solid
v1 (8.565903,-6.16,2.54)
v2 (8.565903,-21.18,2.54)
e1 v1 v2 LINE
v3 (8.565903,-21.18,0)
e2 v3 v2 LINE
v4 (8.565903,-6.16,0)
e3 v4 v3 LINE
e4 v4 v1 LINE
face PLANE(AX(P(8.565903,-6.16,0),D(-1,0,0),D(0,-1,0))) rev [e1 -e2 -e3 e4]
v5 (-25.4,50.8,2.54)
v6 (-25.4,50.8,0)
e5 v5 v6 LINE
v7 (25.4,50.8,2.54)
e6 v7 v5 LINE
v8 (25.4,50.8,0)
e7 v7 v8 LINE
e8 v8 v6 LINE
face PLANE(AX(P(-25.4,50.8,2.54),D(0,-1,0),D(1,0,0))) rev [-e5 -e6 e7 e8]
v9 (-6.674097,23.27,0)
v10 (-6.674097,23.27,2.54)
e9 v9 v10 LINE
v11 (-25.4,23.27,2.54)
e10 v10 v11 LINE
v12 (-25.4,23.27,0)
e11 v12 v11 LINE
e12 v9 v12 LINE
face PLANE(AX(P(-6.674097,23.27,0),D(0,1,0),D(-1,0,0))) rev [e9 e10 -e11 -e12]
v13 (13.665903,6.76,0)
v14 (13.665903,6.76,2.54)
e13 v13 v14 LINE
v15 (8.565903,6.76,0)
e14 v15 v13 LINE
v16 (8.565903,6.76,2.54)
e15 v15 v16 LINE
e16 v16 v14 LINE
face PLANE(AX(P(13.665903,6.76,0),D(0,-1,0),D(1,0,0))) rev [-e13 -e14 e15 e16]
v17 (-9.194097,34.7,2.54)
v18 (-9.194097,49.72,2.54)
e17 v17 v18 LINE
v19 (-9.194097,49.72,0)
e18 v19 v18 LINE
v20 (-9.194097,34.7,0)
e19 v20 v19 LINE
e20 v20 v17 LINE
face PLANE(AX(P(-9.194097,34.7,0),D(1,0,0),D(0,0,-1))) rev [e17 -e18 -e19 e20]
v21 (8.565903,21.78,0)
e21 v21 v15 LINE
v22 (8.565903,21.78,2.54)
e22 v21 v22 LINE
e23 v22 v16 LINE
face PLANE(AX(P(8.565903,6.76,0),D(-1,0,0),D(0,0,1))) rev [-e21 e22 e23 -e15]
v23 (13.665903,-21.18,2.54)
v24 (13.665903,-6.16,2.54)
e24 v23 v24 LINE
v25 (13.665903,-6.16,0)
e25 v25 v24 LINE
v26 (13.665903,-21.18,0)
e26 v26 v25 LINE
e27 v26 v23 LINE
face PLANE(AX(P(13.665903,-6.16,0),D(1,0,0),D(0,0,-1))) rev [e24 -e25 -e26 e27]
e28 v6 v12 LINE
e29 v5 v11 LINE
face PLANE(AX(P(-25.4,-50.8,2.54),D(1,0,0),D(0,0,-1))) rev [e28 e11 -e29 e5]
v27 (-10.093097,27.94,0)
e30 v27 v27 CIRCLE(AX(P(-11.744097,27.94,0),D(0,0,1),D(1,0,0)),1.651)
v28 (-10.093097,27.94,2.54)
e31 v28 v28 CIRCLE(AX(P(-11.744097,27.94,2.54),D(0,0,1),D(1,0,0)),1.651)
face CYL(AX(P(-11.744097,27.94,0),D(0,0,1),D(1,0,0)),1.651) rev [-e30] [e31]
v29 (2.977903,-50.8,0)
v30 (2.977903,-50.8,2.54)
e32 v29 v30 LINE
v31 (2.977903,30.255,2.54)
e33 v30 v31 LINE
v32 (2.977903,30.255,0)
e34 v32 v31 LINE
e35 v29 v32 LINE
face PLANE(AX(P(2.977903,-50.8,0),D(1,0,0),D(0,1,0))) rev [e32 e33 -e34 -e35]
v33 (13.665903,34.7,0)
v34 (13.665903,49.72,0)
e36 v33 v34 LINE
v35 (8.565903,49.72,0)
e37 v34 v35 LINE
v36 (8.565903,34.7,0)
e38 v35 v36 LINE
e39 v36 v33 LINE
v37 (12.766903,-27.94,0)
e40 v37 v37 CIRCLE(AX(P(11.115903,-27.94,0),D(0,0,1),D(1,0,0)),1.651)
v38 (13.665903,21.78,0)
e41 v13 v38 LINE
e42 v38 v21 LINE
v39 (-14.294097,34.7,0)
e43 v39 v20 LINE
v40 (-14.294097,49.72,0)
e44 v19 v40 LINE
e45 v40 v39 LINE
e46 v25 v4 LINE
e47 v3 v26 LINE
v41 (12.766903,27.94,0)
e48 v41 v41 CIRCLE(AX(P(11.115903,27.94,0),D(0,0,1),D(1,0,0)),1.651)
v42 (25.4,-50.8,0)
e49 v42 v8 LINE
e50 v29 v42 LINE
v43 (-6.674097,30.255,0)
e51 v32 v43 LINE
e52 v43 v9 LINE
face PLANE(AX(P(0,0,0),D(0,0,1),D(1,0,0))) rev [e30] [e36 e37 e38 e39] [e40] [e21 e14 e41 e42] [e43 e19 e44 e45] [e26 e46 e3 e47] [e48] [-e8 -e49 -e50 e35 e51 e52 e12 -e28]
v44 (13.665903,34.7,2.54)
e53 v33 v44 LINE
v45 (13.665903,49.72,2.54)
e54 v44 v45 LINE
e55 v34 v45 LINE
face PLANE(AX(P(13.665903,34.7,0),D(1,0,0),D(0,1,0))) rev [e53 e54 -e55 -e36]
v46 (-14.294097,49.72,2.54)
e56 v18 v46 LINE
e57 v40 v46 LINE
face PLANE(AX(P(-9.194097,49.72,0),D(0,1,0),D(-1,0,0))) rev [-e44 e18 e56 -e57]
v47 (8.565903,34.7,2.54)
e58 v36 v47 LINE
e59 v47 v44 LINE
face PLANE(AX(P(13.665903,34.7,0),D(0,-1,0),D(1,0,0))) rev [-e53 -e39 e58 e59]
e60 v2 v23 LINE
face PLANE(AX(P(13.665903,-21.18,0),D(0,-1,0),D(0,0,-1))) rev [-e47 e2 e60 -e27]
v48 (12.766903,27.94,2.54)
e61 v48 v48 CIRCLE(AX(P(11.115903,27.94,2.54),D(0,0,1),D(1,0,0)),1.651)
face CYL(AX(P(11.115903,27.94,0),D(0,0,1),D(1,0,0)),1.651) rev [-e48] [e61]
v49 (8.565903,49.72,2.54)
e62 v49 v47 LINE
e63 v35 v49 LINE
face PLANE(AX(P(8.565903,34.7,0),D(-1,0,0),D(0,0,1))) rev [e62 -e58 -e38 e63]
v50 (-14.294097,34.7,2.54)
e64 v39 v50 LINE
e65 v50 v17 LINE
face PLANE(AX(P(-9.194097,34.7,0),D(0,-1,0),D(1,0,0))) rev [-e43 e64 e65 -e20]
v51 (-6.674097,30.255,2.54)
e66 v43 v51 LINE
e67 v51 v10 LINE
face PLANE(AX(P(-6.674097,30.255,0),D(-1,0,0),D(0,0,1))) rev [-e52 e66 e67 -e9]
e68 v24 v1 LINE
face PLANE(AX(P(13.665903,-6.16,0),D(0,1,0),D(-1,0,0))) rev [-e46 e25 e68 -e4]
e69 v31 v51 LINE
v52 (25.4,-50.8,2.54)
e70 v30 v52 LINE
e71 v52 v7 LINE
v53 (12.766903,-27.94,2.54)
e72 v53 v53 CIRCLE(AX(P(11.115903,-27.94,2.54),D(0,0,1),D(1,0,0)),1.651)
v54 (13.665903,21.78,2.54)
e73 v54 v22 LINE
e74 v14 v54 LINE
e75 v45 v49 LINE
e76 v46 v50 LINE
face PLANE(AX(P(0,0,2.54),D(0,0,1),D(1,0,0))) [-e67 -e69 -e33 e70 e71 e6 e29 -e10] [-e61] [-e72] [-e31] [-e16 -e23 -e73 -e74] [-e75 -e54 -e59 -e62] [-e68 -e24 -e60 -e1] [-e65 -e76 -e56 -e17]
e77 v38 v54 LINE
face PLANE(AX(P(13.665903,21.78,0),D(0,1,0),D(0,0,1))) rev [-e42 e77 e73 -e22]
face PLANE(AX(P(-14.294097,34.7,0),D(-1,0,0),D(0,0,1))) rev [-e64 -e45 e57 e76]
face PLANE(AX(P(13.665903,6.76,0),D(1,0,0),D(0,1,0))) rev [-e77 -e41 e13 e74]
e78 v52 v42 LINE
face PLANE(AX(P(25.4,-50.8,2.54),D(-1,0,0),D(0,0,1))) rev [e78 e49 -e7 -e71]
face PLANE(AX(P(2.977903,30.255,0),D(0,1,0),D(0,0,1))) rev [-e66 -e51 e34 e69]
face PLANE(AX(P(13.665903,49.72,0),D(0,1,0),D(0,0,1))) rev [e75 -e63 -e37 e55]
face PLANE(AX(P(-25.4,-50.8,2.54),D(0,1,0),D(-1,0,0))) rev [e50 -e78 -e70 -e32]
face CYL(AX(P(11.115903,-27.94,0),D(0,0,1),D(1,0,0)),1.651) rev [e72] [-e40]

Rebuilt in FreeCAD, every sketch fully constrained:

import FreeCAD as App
import Part
import Sketcher
from FreeCAD import Vector
Q = App.Units.Quantity

doc = App.newDocument("Part")
body = doc.addObject("PartDesign::Body", "Body")

sketch1 = doc.addObject("Sketcher::SketchObject", "Sketch")
body.addObject(sketch1)
sketch1.AttachmentSupport = (doc.XY_Plane, [""])
sketch1.MapMode = "FlatFace"
sketch1.addGeometry(Part.LineSegment(Vector(-25.4, -50.8, 0), Vector(25.4, -50.8, 0)), False)
sketch1.addGeometry(Part.LineSegment(Vector(25.4, -50.8, 0), Vector(25.4, 50.8, 0)), False)
sketch1.addGeometry(Part.LineSegment(Vector(25.4, 50.8, 0), Vector(-25.4, 50.8, 0)), False)
sketch1.addGeometry(Part.LineSegment(Vector(-25.4, 50.8, 0), Vector(-25.4, -50.8, 0)), False)
sketch1.addConstraint(Sketcher.Constraint("Coincident", 0, 2, 1, 1))
sketch1.addConstraint(Sketcher.Constraint("Coincident", 1, 2, 2, 1))
sketch1.addConstraint(Sketcher.Constraint("Coincident", 2, 2, 3, 1))
sketch1.addConstraint(Sketcher.Constraint("Coincident", 3, 2, 0, 1))
sketch1.addConstraint(Sketcher.Constraint("Horizontal", 0))
sketch1.addConstraint(Sketcher.Constraint("Vertical", 1))
sketch1.addConstraint(Sketcher.Constraint("Horizontal", 2))
sketch1.addConstraint(Sketcher.Constraint("Vertical", 3))
sketch1.addConstraint(Sketcher.Constraint("Symmetric", 0, 2, 2, 2, -1, 1))
sketch1.addConstraint(Sketcher.Constraint("DistanceX", 0, 1, 0, 2, Q("2 in")))
sketch1.addConstraint(Sketcher.Constraint("DistanceY", 1, 1, 1, 2, Q("4 in")))
pad1 = doc.addObject("PartDesign::Pad", "Pad")
body.addObject(pad1)
pad1.Profile = sketch1
pad1.Length = Q("0.1 in")

sketch2 = doc.addObject("Sketcher::SketchObject", "Sketch001")
body.addObject(sketch2)
sketch2.AttachmentSupport = (doc.XY_Plane, [""])
sketch2.MapMode = "FlatFace"
sketch2.AttachmentOffset = App.Placement(Vector(0, 0, 0.1 * 25.4), App.Rotation())
sketch2.addGeometry(Part.Circle(Vector(11.115903, 27.94, 0), Vector(0, 0, 1), 1.651), False)
sketch2.addGeometry(Part.Circle(Vector(11.115903, -27.94, 0), Vector(0, 0, 1), 1.651), False)
sketch2.addGeometry(Part.Circle(Vector(-11.744097, 27.94, 0), Vector(0, 0, 1), 1.651), False)
sketch2.addConstraint(Sketcher.Constraint("Equal", 0, 1))
sketch2.addConstraint(Sketcher.Constraint("Equal", 1, 2))
sketch2.addConstraint(Sketcher.Constraint("Symmetric", 0, 3, 1, 3, -1))
sketch2.addConstraint(Sketcher.Constraint("Horizontal", 0, 3, 2, 3))
sketch2.addConstraint(Sketcher.Constraint("Diameter", 0, Q("0.13 in")))
sketch2.addConstraint(Sketcher.Constraint("DistanceY", -1, 1, 0, 3, Q("1.1 in")))
sketch2.addConstraint(Sketcher.Constraint("DistanceX", 2, 3, 0, 3, Q("0.9 in")))
sketch2.addConstraint(Sketcher.Constraint("DistanceX", -1, 1, 0, 3, Q("11.115903 mm")))
pocket1 = doc.addObject("PartDesign::Pocket", "Pocket")
body.addObject(pocket1)
pocket1.Profile = sketch2
pocket1.Type = "ThroughAll"

sketch3 = doc.addObject("Sketcher::SketchObject", "Sketch002")
body.addObject(sketch3)
sketch3.AttachmentSupport = (doc.XY_Plane, [""])
sketch3.MapMode = "FlatFace"
sketch3.AttachmentOffset = App.Placement(Vector(0, 0, 0.1 * 25.4), App.Rotation())
sketch3.addGeometry(Part.LineSegment(Vector(8.565903, -6.16, 0), Vector(8.565903, -21.18, 0)), False)
sketch3.addGeometry(Part.LineSegment(Vector(8.565903, -21.18, 0), Vector(13.665903, -21.18, 0)), False)
sketch3.addGeometry(Part.LineSegment(Vector(13.665903, -21.18, 0), Vector(13.665903, -6.16, 0)), False)
sketch3.addGeometry(Part.LineSegment(Vector(13.665903, -6.16, 0), Vector(8.565903, -6.16, 0)), False)
sketch3.addGeometry(Part.LineSegment(Vector(8.565903, 21.78, 0), Vector(8.565903, 6.76, 0)), False)
sketch3.addGeometry(Part.LineSegment(Vector(8.565903, 6.76, 0), Vector(13.665903, 6.76, 0)), False)
sketch3.addGeometry(Part.LineSegment(Vector(13.665903, 6.76, 0), Vector(13.665903, 21.78, 0)), False)
sketch3.addGeometry(Part.LineSegment(Vector(13.665903, 21.78, 0), Vector(8.565903, 21.78, 0)), False)
sketch3.addGeometry(Part.LineSegment(Vector(8.565903, 49.72, 0), Vector(8.565903, 34.7, 0)), False)
sketch3.addGeometry(Part.LineSegment(Vector(8.565903, 34.7, 0), Vector(13.665903, 34.7, 0)), False)
sketch3.addGeometry(Part.LineSegment(Vector(13.665903, 34.7, 0), Vector(13.665903, 49.72, 0)), False)
sketch3.addGeometry(Part.LineSegment(Vector(13.665903, 49.72, 0), Vector(8.565903, 49.72, 0)), False)
sketch3.addGeometry(Part.LineSegment(Vector(-14.294097, 49.72, 0), Vector(-14.294097, 34.7, 0)), False)
sketch3.addGeometry(Part.LineSegment(Vector(-14.294097, 34.7, 0), Vector(-9.194097, 34.7, 0)), False)
sketch3.addGeometry(Part.LineSegment(Vector(-9.194097, 34.7, 0), Vector(-9.194097, 49.72, 0)), False)
sketch3.addGeometry(Part.LineSegment(Vector(-9.194097, 49.72, 0), Vector(-14.294097, 49.72, 0)), False)
sketch3.addConstraint(Sketcher.Constraint("Coincident", 0, 2, 1, 1))
sketch3.addConstraint(Sketcher.Constraint("Coincident", 1, 2, 2, 1))
sketch3.addConstraint(Sketcher.Constraint("Coincident", 2, 2, 3, 1))
sketch3.addConstraint(Sketcher.Constraint("Coincident", 3, 2, 0, 1))
sketch3.addConstraint(Sketcher.Constraint("Coincident", 4, 2, 5, 1))
sketch3.addConstraint(Sketcher.Constraint("Coincident", 5, 2, 6, 1))
sketch3.addConstraint(Sketcher.Constraint("Coincident", 6, 2, 7, 1))
sketch3.addConstraint(Sketcher.Constraint("Coincident", 7, 2, 4, 1))
sketch3.addConstraint(Sketcher.Constraint("Coincident", 8, 2, 9, 1))
sketch3.addConstraint(Sketcher.Constraint("Coincident", 9, 2, 10, 1))
sketch3.addConstraint(Sketcher.Constraint("Coincident", 10, 2, 11, 1))
sketch3.addConstraint(Sketcher.Constraint("Coincident", 11, 2, 8, 1))
sketch3.addConstraint(Sketcher.Constraint("Coincident", 12, 2, 13, 1))
sketch3.addConstraint(Sketcher.Constraint("Coincident", 13, 2, 14, 1))
sketch3.addConstraint(Sketcher.Constraint("Coincident", 14, 2, 15, 1))
sketch3.addConstraint(Sketcher.Constraint("Coincident", 15, 2, 12, 1))
sketch3.addConstraint(Sketcher.Constraint("Vertical", 0))
sketch3.addConstraint(Sketcher.Constraint("Horizontal", 1))
sketch3.addConstraint(Sketcher.Constraint("Vertical", 2))
sketch3.addConstraint(Sketcher.Constraint("Horizontal", 3))
sketch3.addConstraint(Sketcher.Constraint("Vertical", 4))
sketch3.addConstraint(Sketcher.Constraint("Horizontal", 5))
sketch3.addConstraint(Sketcher.Constraint("Vertical", 6))
sketch3.addConstraint(Sketcher.Constraint("Horizontal", 7))
sketch3.addConstraint(Sketcher.Constraint("Vertical", 8))
sketch3.addConstraint(Sketcher.Constraint("Horizontal", 9))
sketch3.addConstraint(Sketcher.Constraint("Vertical", 10))
sketch3.addConstraint(Sketcher.Constraint("Horizontal", 11))
sketch3.addConstraint(Sketcher.Constraint("Vertical", 12))
sketch3.addConstraint(Sketcher.Constraint("Horizontal", 13))
sketch3.addConstraint(Sketcher.Constraint("Vertical", 14))
sketch3.addConstraint(Sketcher.Constraint("Horizontal", 15))
sketch3.addConstraint(Sketcher.Constraint("Horizontal", 9, 2, 12, 2))
sketch3.addConstraint(Sketcher.Constraint("Horizontal", 11, 2, 14, 2))
sketch3.addConstraint(Sketcher.Constraint("Vertical", 3, 2, 4, 2))
sketch3.addConstraint(Sketcher.Constraint("Vertical", 2, 2, 5, 2))
sketch3.addConstraint(Sketcher.Constraint("Vertical", 7, 2, 8, 2))
sketch3.addConstraint(Sketcher.Constraint("Vertical", 6, 2, 9, 2))
sketch3.addConstraint(Sketcher.Constraint("Equal", 11, 13))
sketch3.addConstraint(Sketcher.Constraint("Equal", 2, 4))
sketch3.addConstraint(Sketcher.Constraint("Equal", 6, 8))
sketch3.addConstraint(Sketcher.Constraint("DistanceY", 0, 2, 4, 2, Q("1.1 in")))
sketch3.addConstraint(Sketcher.Constraint("DistanceY", 4, 2, 8, 2, Q("1.1 in")))
sketch3.addConstraint(Sketcher.Constraint("DistanceX", 12, 2, 8, 2, Q("0.9 in")))
sketch3.addConstraint(Sketcher.Constraint("DistanceX", 1, 1, 1, 2, Q("5.1 mm")))
sketch3.addConstraint(Sketcher.Constraint("DistanceY", 0, 2, 0, 1, Q("15.02 mm")))
sketch3.addConstraint(Sketcher.Constraint("DistanceY", 0, 2, -1, 1, Q("21.18 mm")))
sketch3.addConstraint(Sketcher.Constraint("DistanceX", -1, 1, 0, 2, Q("8.565903 mm")))
pocket2 = doc.addObject("PartDesign::Pocket", "Pocket001")
body.addObject(pocket2)
pocket2.Profile = sketch3
pocket2.Type = "ThroughAll"

sketch4 = doc.addObject("Sketcher::SketchObject", "Sketch003")
body.addObject(sketch4)
sketch4.AttachmentSupport = (doc.XY_Plane, [""])
sketch4.MapMode = "FlatFace"
sketch4.AttachmentOffset = App.Placement(Vector(0, 0, 0.1 * 25.4), App.Rotation())
sketch4.addGeometry(Part.LineSegment(Vector(2.977903, -50.8, 0), Vector(2.977903, 30.255, 0)), False)
sketch4.addGeometry(Part.LineSegment(Vector(2.977903, 30.255, 0), Vector(-6.674097, 30.255, 0)), False)
sketch4.addGeometry(Part.LineSegment(Vector(-6.674097, 30.255, 0), Vector(-6.674097, 23.27, 0)), False)
sketch4.addGeometry(Part.LineSegment(Vector(-6.674097, 23.27, 0), Vector(-25.4, 23.27, 0)), False)
sketch4.addGeometry(Part.LineSegment(Vector(-25.4, 23.27, 0), Vector(-25.4, -50.8, 0)), False)
sketch4.addGeometry(Part.LineSegment(Vector(-25.4, -50.8, 0), Vector(2.977903, -50.8, 0)), False)
sketch4.addConstraint(Sketcher.Constraint("Coincident", 0, 2, 1, 1))
sketch4.addConstraint(Sketcher.Constraint("Coincident", 1, 2, 2, 1))
sketch4.addConstraint(Sketcher.Constraint("Coincident", 2, 2, 3, 1))
sketch4.addConstraint(Sketcher.Constraint("Coincident", 3, 2, 4, 1))
sketch4.addConstraint(Sketcher.Constraint("Coincident", 4, 2, 5, 1))
sketch4.addConstraint(Sketcher.Constraint("Coincident", 5, 2, 0, 1))
sketch4.addConstraint(Sketcher.Constraint("Vertical", 0))
sketch4.addConstraint(Sketcher.Constraint("Horizontal", 1))
sketch4.addConstraint(Sketcher.Constraint("Vertical", 2))
sketch4.addConstraint(Sketcher.Constraint("Horizontal", 3))
sketch4.addConstraint(Sketcher.Constraint("Vertical", 4))
sketch4.addConstraint(Sketcher.Constraint("Horizontal", 5))
sketch4.addConstraint(Sketcher.Constraint("DistanceX", 3, 2, -1, 1, Q("1 in")))
sketch4.addConstraint(Sketcher.Constraint("DistanceY", 4, 2, -1, 1, Q("2 in")))
sketch4.addConstraint(Sketcher.Constraint("DistanceX", 1, 2, 1, 1, Q("0.38 in")))
sketch4.addConstraint(Sketcher.Constraint("DistanceY", 2, 2, 2, 1, Q("0.275 in")))
sketch4.addConstraint(Sketcher.Constraint("DistanceY", 0, 1, 0, 2, Q("81.055 mm")))
sketch4.addConstraint(Sketcher.Constraint("DistanceX", 3, 2, 3, 1, Q("18.725903 mm")))
pocket3 = doc.addObject("PartDesign::Pocket", "Pocket002")
body.addObject(pocket3)
pocket3.Profile = sketch4
pocket3.Type = "ThroughAll"

doc.recompute()
